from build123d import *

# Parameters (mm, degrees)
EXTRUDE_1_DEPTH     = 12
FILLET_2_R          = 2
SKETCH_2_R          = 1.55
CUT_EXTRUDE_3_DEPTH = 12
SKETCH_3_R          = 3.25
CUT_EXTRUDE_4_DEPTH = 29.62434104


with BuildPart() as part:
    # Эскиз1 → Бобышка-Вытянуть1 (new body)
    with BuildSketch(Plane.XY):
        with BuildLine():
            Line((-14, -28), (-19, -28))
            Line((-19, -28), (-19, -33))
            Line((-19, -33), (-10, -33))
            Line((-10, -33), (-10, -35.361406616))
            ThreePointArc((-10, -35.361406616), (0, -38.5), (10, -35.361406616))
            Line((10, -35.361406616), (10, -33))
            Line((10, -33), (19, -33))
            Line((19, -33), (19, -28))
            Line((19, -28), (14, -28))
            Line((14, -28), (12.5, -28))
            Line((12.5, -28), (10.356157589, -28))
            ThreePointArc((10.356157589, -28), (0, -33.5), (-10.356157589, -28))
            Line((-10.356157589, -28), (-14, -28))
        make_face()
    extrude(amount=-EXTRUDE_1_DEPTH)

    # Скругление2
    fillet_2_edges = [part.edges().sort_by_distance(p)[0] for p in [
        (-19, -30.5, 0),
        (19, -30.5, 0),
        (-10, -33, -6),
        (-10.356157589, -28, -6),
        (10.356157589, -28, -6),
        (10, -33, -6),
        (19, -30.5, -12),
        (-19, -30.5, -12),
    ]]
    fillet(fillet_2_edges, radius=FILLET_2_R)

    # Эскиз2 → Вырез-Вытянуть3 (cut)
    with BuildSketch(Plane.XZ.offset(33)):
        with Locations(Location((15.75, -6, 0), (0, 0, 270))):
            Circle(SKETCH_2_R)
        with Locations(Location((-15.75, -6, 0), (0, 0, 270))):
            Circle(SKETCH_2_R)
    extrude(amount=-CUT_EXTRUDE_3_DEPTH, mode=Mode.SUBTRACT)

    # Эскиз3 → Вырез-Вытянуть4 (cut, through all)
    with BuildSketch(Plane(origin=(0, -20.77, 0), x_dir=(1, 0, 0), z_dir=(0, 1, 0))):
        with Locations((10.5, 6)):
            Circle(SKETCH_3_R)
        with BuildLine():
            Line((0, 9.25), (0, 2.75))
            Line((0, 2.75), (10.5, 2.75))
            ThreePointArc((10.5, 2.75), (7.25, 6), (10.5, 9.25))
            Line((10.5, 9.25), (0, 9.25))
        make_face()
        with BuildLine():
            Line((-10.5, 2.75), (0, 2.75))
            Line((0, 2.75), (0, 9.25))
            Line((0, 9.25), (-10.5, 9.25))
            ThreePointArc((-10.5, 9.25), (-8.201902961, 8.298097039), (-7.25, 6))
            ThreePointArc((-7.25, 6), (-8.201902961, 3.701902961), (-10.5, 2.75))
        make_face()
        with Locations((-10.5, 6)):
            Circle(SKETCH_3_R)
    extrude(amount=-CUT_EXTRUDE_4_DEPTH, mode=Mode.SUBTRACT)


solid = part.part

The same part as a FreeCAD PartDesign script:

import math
import FreeCAD as App
import Part
import Sketcher


def edges_at(feature, points):
    """Names of the edges that pass closest to the given points."""
    edges = feature.Shape.Edges
    near = lambda p: min(range(len(edges)), key=lambda i: edges[i].distToShape(Part.Vertex(*p))[0])
    return sorted({f"Edge{near(p) + 1}" for p in points})

doc = App.newDocument("Part")
body = doc.addObject("PartDesign::Body", "Body")

# Sketch on XY plane
sketch1 = doc.addObject("Sketcher::SketchObject", "Sketch")
body.addObject(sketch1)
sketch1.AttachmentSupport = (doc.XY_Plane, [""])
sketch1.MapMode = "FlatFace"
sketch1.addGeometry([
    Part.LineSegment(App.Vector(-19, -28, 0), App.Vector(-19, -33, 0)),  # 0
    Part.LineSegment(App.Vector(-19, -33, 0), App.Vector(-10, -33, 0)),  # 1
    Part.LineSegment(App.Vector(-10, -33, 0), App.Vector(-10, -35.4, 0)),  # 2
    Part.ArcOfCircle(Part.Circle(App.Vector(0, -21, 0), App.Vector(0, 0, 1), 17.5), math.radians(-125), math.radians(-55)),  # 3
    Part.LineSegment(App.Vector(10, -35.4, 0), App.Vector(10, -33, 0)),  # 4
    Part.LineSegment(App.Vector(10, -33, 0), App.Vector(19, -33, 0)),  # 5
    Part.LineSegment(App.Vector(19, -33, 0), App.Vector(19, -28, 0)),  # 6
    Part.LineSegment(App.Vector(19, -28, 0), App.Vector(10.4, -28, 0)),  # 7
    Part.ArcOfCircle(Part.Circle(App.Vector(0, -21, 0), App.Vector(0, 0, 1), 12.5), math.radians(-146), math.radians(-34)),  # 8
    Part.LineSegment(App.Vector(-10.4, -28, 0), App.Vector(-19, -28, 0)),  # 9
], False)
sketch1.addConstraint([
    Sketcher.Constraint("Coincident", 0, 2, 1, 1),
    Sketcher.Constraint("Coincident", 1, 2, 2, 1),
    Sketcher.Constraint("Coincident", 2, 2, 3, 1),
    Sketcher.Constraint("Coincident", 3, 2, 4, 1),
    Sketcher.Constraint("Coincident", 4, 2, 5, 1),
    Sketcher.Constraint("Coincident", 5, 2, 6, 1),
    Sketcher.Constraint("Coincident", 6, 2, 7, 1),
    Sketcher.Constraint("Coincident", 7, 2, 8, 2),
    Sketcher.Constraint("Coincident", 8, 1, 9, 1),
    Sketcher.Constraint("Coincident", 9, 2, 0, 1),
    Sketcher.Constraint("Vertical", 0),
    Sketcher.Constraint("Horizontal", 1),
    Sketcher.Constraint("Vertical", 2),
    Sketcher.Constraint("Vertical", 4),
    Sketcher.Constraint("Horizontal", 5),
    Sketcher.Constraint("Vertical", 6),
    Sketcher.Constraint("Horizontal", 7),
    Sketcher.Constraint("Horizontal", 9),
    Sketcher.Constraint("Coincident", 8, 3, 3, 3),
    Sketcher.Constraint("Symmetric", 2, 2, 3, 2, -2),
    Sketcher.Constraint("Symmetric", 0, 2, 5, 2, -2),
    Sketcher.Constraint("Horizontal", 7, 2, 8, 1),
    Sketcher.Constraint("Radius", 3, 17.5),
    Sketcher.Constraint("Radius", 8, 12.5),
    Sketcher.Constraint("DistanceX", 1, 1, 1, 2, 9.0),
    Sketcher.Constraint("DistanceY", 0, 2, 0, 1, 5.0),
    Sketcher.Constraint("DistanceY", 3, 3, -1, 1, 21.0),
    Sketcher.Constraint("DistanceX", 0, 2, -1, 1, 19.0),
    Sketcher.Constraint("DistanceY", 0, 2, -1, 1, 33.0),
])
pad1 = doc.addObject("PartDesign::Pad", "Pad")
body.addObject(pad1)
pad1.Profile = sketch1
pad1.Length = 12
pad1.Reversed = True
doc.recompute()

fillet = doc.addObject("PartDesign::Fillet", "Fillet")
body.addObject(fillet)
fillet.Base = (pad1, edges_at(pad1, [
    (-19, -30.5, 0),
    (19, -30.5, 0),
    (-10, -33, -6),
    (-10.356, -28, -6),
    (10.356, -28, -6),
    (10, -33, -6),
    (19, -30.5, -12),
    (-19, -30.5, -12),
]))
fillet.Radius = 2

# Sketch on XZ plane
sketch2 = doc.addObject("Sketcher::SketchObject", "Sketch001")
body.addObject(sketch2)
sketch2.AttachmentSupport = (doc.XZ_Plane, [""])
sketch2.MapMode = "FlatFace"
sketch2.AttachmentOffset = App.Placement(App.Vector(0, 0, 33), App.Rotation())
sketch2.addGeometry([
    Part.Circle(App.Vector(15.8, -6, 0), App.Vector(0, 0, 1), 1.6),
    Part.Circle(App.Vector(-15.8, -6, 0), App.Vector(0, 0, 1), 1.6),
], False)
sketch2.addConstraint([
    Sketcher.Constraint("Equal", 0, 1),
    Sketcher.Constraint("Symmetric", 0, 3, 1, 3, -2),
    Sketcher.Constraint("Diameter", 0, 3.1),
    Sketcher.Constraint("DistanceY", 0, 3, -1, 1, 6.0),
    Sketcher.Constraint("DistanceX", 1, 3, 0, 3, 31.5),
])
pocket1 = doc.addObject("PartDesign::Pocket", "Pocket")
body.addObject(pocket1)
pocket1.Profile = sketch2
pocket1.Length = 12

# Sketch on XZ plane
sketch3 = doc.addObject("Sketcher::SketchObject", "Sketch002")
body.addObject(sketch3)
sketch3.AttachmentSupport = (doc.XZ_Plane, [""])
sketch3.MapMode = "FlatFace"
sketch3.AttachmentOffset = App.Placement(App.Vector(0, 0, 20.77), App.Rotation())
sketch3.addGeometry([
    Part.LineSegment(App.Vector(-10.5, -2.8, 0), App.Vector(10.5, -2.8, 0)),
    Part.ArcOfCircle(Part.Circle(App.Vector(10.5, -6, 0), App.Vector(0, 0, 1), 3.2), math.radians(-90), math.radians(90)),
    Part.LineSegment(App.Vector(10.5, -9.2, 0), App.Vector(-10.5, -9.2, 0)),
    Part.ArcOfCircle(Part.Circle(App.Vector(-10.5, -6, 0), App.Vector(0, 0, 1), 3.2), math.radians(90), math.radians(270)),
], False)
sketch3.addConstraint([
    Sketcher.Constraint("Tangent", 0, 2, 1, 2),
    Sketcher.Constraint("Tangent", 1, 1, 2, 1),
    Sketcher.Constraint("Tangent", 2, 2, 3, 2),
    Sketcher.Constraint("Tangent", 3, 1, 0, 1),
    Sketcher.Constraint("Horizontal", 0),
    Sketcher.Constraint("Horizontal", 2),
    Sketcher.Constraint("DistanceX", 0, 1, 0, 2, 21.0),
    Sketcher.Constraint("Radius", 1, 3.25),
    Sketcher.Constraint("DistanceY", 1, 3, -1, 1, 6.0),
    Sketcher.Constraint("DistanceX", -1, 1, 1, 3, 10.5),
])
pocket2 = doc.addObject("PartDesign::Pocket", "Pocket001")
body.addObject(pocket2)
pocket2.Profile = sketch3
pocket2.Type = "ThroughAll"
pocket2.Reversed = True

doc.recompute()
